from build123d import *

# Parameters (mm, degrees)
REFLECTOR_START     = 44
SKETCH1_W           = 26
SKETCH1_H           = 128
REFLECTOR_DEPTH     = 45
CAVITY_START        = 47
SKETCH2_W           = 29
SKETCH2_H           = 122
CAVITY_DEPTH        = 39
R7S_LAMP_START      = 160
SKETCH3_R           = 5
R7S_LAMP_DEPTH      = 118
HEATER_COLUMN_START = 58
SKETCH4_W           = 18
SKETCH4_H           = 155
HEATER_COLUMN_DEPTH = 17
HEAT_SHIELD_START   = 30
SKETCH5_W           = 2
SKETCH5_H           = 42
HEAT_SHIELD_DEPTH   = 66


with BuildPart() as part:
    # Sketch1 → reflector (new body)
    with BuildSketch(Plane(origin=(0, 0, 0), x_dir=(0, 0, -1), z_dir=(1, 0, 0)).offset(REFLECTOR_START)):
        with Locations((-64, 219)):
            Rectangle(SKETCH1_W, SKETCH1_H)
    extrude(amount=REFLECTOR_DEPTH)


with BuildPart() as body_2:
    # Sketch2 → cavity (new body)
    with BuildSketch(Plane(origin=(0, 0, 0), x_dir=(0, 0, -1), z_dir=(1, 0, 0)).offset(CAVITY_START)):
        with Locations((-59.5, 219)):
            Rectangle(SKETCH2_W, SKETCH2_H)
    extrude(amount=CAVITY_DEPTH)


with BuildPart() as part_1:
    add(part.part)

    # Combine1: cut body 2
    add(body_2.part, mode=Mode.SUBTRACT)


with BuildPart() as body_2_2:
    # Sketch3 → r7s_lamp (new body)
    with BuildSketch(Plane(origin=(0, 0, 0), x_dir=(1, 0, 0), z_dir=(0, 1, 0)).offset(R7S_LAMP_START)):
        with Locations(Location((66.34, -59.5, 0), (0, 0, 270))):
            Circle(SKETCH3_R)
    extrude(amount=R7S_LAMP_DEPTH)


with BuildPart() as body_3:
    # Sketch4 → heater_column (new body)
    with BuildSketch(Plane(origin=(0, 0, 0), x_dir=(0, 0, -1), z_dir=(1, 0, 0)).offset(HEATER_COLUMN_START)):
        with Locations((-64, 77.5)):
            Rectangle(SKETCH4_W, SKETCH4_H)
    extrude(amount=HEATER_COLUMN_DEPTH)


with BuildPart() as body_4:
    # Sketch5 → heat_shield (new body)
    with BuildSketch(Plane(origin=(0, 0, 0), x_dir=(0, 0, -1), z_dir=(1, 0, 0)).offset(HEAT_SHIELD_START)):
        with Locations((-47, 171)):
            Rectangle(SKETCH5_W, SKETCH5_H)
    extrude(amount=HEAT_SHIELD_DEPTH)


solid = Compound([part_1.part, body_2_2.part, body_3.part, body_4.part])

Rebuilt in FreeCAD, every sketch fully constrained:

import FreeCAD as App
import Part
import Sketcher
from FreeCAD import Vector


def add_polygon(sketch, points):
    """Adds a closed chain of lines whose ends are joined by coincident constraints."""
    first, n = sketch.GeometryCount, len(points)
    for a, b in zip(points, points[1:] + points[:1]):
        sketch.addGeometry(Part.LineSegment(App.Vector(*a, 0), App.Vector(*b, 0)), False)
    for i in range(n):
        sketch.addConstraint(Sketcher.Constraint("Coincident", first + i, 2, first + (i + 1) % n, 1))

doc = App.newDocument("Part")
body = doc.addObject("PartDesign::Body", "Body")

# Sketch on YZ plane
sketch1 = body.newObject("Sketcher::SketchObject", "Sketch")
sketch1.AttachmentSupport = (doc.getObject("YZ_Plane"), [""])
sketch1.MapMode = "FlatFace"
sketch1.AttachmentOffset = App.Placement(Vector(0, 0, 44), App.Rotation())
add_polygon(sketch1, [(283, 77), (155, 77), (155, 51), (283, 51)])  # lines 0-3
sketch1.addConstraint([
    Sketcher.Constraint("Horizontal", 0),
    Sketcher.Constraint("Vertical", 1),
    Sketcher.Constraint("Horizontal", 2),
    Sketcher.Constraint("Vertical", 3),
    Sketcher.Constraint("DistanceX", 0, 2, 0, 1, 128.0),
    Sketcher.Constraint("DistanceY", 1, 2, 1, 1, 26.0),
    Sketcher.Constraint("DistanceX", -1, 1, 0, 2, 155.0),
    Sketcher.Constraint("DistanceY", -1, 1, 0, 2, 77.0),
])
pad1 = body.newObject("PartDesign::Pad", "Pad")
pad1.Profile = sketch1
pad1.Length = 45
body2 = doc.addObject("PartDesign::Body", "Body001")

# Sketch on YZ plane
sketch2 = body2.newObject("Sketcher::SketchObject", "Sketch001")
sketch2.AttachmentSupport = (doc.getObject("YZ_Plane001"), [""])
sketch2.MapMode = "FlatFace"
sketch2.AttachmentOffset = App.Placement(Vector(0, 0, 47), App.Rotation())
add_polygon(sketch2, [(280, 74), (158, 74), (158, 45), (280, 45)])  # lines 0-3
sketch2.addConstraint([
    Sketcher.Constraint("Horizontal", 0),
    Sketcher.Constraint("Vertical", 1),
    Sketcher.Constraint("Horizontal", 2),
    Sketcher.Constraint("Vertical", 3),
    Sketcher.Constraint("DistanceX", 0, 2, 0, 1, 122.0),
    Sketcher.Constraint("DistanceY", 1, 2, 1, 1, 29.0),
    Sketcher.Constraint("DistanceX", -1, 1, 0, 2, 158.0),
    Sketcher.Constraint("DistanceY", -1, 1, 0, 2, 74.0),
])
pad2 = body2.newObject("PartDesign::Pad", "Pad001")
pad2.Profile = sketch2
pad2.Length = 39
doc.recompute()

boolean = body.newObject("PartDesign::Boolean", "Boolean")
boolean.Type = "Cut"
boolean.addObjects([body2])
body3 = doc.addObject("PartDesign::Body", "Body002")

# Sketch on XZ plane
sketch3 = body3.newObject("Sketcher::SketchObject", "Sketch002")
sketch3.AttachmentSupport = (doc.getObject("XZ_Plane002"), [""])
sketch3.MapMode = "FlatFace"
sketch3.AttachmentOffset = App.Placement(Vector(0, 0, -160), App.Rotation())
sketch3.addGeometry(Part.Circle(Vector(66, 60, 0), Vector(0, 0, 1), 5), False)
sketch3.addConstraint([
    Sketcher.Constraint("Diameter", 0, 10.0),
    Sketcher.Constraint("DistanceY", -1, 1, 0, 3, 59.5),
    Sketcher.Constraint("DistanceX", -1, 1, 0, 3, 66.34),
])
pad3 = body3.newObject("PartDesign::Pad", "Pad002")
pad3.Profile = sketch3
pad3.Length = 118
pad3.Reversed = True
body4 = doc.addObject("PartDesign::Body", "Body003")

# Sketch on YZ plane
sketch4 = body4.newObject("Sketcher::SketchObject", "Sketch003")
sketch4.AttachmentSupport = (doc.getObject("YZ_Plane003"), [""])
sketch4.MapMode = "FlatFace"
sketch4.AttachmentOffset = App.Placement(Vector(0, 0, 58), App.Rotation())
add_polygon(sketch4, [(155, 73), (0, 73), (0, 55), (155, 55)])  # lines 0-3
sketch4.addConstraint([
    Sketcher.Constraint("Horizontal", 0),
    Sketcher.Constraint("Vertical", 1),
    Sketcher.Constraint("Horizontal", 2),
    Sketcher.Constraint("Vertical", 3),
    Sketcher.Constraint("PointOnObject", 0, 2, -2),
    Sketcher.Constraint("DistanceX", 0, 2, 0, 1, 155.0),
    Sketcher.Constraint("DistanceY", 1, 2, 1, 1, 18.0),
    Sketcher.Constraint("DistanceY", -1, 1, 0, 2, 73.0),
])
pad4 = body4.newObject("PartDesign::Pad", "Pad003")
pad4.Profile = sketch4
pad4.Length = 17
body5 = doc.addObject("PartDesign::Body", "Body004")

# Sketch on YZ plane
sketch5 = body5.newObject("Sketcher::SketchObject", "Sketch004")
sketch5.AttachmentSupport = (doc.getObject("YZ_Plane004"), [""])
sketch5.MapMode = "FlatFace"
sketch5.AttachmentOffset = App.Placement(Vector(0, 0, 30), App.Rotation())
add_polygon(sketch5, [(192, 48), (150, 48), (150, 46), (192, 46)])  # lines 0-3
sketch5.addConstraint([
    Sketcher.Constraint("Horizontal", 0),
    Sketcher.Constraint("Vertical", 1),
    Sketcher.Constraint("Horizontal", 2),
    Sketcher.Constraint("Vertical", 3),
    Sketcher.Constraint("DistanceX", 0, 2, 0, 1, 42.0),
    Sketcher.Constraint("DistanceY", 1, 2, 1, 1, 2.0),
    Sketcher.Constraint("DistanceX", -1, 1, 0, 2, 150.0),
    Sketcher.Constraint("DistanceY", -1, 1, 0, 2, 48.0),
])
pad5 = body5.newObject("PartDesign::Pad", "Pad004")
pad5.Profile = sketch5
pad5.Length = 66

doc.recompute()
